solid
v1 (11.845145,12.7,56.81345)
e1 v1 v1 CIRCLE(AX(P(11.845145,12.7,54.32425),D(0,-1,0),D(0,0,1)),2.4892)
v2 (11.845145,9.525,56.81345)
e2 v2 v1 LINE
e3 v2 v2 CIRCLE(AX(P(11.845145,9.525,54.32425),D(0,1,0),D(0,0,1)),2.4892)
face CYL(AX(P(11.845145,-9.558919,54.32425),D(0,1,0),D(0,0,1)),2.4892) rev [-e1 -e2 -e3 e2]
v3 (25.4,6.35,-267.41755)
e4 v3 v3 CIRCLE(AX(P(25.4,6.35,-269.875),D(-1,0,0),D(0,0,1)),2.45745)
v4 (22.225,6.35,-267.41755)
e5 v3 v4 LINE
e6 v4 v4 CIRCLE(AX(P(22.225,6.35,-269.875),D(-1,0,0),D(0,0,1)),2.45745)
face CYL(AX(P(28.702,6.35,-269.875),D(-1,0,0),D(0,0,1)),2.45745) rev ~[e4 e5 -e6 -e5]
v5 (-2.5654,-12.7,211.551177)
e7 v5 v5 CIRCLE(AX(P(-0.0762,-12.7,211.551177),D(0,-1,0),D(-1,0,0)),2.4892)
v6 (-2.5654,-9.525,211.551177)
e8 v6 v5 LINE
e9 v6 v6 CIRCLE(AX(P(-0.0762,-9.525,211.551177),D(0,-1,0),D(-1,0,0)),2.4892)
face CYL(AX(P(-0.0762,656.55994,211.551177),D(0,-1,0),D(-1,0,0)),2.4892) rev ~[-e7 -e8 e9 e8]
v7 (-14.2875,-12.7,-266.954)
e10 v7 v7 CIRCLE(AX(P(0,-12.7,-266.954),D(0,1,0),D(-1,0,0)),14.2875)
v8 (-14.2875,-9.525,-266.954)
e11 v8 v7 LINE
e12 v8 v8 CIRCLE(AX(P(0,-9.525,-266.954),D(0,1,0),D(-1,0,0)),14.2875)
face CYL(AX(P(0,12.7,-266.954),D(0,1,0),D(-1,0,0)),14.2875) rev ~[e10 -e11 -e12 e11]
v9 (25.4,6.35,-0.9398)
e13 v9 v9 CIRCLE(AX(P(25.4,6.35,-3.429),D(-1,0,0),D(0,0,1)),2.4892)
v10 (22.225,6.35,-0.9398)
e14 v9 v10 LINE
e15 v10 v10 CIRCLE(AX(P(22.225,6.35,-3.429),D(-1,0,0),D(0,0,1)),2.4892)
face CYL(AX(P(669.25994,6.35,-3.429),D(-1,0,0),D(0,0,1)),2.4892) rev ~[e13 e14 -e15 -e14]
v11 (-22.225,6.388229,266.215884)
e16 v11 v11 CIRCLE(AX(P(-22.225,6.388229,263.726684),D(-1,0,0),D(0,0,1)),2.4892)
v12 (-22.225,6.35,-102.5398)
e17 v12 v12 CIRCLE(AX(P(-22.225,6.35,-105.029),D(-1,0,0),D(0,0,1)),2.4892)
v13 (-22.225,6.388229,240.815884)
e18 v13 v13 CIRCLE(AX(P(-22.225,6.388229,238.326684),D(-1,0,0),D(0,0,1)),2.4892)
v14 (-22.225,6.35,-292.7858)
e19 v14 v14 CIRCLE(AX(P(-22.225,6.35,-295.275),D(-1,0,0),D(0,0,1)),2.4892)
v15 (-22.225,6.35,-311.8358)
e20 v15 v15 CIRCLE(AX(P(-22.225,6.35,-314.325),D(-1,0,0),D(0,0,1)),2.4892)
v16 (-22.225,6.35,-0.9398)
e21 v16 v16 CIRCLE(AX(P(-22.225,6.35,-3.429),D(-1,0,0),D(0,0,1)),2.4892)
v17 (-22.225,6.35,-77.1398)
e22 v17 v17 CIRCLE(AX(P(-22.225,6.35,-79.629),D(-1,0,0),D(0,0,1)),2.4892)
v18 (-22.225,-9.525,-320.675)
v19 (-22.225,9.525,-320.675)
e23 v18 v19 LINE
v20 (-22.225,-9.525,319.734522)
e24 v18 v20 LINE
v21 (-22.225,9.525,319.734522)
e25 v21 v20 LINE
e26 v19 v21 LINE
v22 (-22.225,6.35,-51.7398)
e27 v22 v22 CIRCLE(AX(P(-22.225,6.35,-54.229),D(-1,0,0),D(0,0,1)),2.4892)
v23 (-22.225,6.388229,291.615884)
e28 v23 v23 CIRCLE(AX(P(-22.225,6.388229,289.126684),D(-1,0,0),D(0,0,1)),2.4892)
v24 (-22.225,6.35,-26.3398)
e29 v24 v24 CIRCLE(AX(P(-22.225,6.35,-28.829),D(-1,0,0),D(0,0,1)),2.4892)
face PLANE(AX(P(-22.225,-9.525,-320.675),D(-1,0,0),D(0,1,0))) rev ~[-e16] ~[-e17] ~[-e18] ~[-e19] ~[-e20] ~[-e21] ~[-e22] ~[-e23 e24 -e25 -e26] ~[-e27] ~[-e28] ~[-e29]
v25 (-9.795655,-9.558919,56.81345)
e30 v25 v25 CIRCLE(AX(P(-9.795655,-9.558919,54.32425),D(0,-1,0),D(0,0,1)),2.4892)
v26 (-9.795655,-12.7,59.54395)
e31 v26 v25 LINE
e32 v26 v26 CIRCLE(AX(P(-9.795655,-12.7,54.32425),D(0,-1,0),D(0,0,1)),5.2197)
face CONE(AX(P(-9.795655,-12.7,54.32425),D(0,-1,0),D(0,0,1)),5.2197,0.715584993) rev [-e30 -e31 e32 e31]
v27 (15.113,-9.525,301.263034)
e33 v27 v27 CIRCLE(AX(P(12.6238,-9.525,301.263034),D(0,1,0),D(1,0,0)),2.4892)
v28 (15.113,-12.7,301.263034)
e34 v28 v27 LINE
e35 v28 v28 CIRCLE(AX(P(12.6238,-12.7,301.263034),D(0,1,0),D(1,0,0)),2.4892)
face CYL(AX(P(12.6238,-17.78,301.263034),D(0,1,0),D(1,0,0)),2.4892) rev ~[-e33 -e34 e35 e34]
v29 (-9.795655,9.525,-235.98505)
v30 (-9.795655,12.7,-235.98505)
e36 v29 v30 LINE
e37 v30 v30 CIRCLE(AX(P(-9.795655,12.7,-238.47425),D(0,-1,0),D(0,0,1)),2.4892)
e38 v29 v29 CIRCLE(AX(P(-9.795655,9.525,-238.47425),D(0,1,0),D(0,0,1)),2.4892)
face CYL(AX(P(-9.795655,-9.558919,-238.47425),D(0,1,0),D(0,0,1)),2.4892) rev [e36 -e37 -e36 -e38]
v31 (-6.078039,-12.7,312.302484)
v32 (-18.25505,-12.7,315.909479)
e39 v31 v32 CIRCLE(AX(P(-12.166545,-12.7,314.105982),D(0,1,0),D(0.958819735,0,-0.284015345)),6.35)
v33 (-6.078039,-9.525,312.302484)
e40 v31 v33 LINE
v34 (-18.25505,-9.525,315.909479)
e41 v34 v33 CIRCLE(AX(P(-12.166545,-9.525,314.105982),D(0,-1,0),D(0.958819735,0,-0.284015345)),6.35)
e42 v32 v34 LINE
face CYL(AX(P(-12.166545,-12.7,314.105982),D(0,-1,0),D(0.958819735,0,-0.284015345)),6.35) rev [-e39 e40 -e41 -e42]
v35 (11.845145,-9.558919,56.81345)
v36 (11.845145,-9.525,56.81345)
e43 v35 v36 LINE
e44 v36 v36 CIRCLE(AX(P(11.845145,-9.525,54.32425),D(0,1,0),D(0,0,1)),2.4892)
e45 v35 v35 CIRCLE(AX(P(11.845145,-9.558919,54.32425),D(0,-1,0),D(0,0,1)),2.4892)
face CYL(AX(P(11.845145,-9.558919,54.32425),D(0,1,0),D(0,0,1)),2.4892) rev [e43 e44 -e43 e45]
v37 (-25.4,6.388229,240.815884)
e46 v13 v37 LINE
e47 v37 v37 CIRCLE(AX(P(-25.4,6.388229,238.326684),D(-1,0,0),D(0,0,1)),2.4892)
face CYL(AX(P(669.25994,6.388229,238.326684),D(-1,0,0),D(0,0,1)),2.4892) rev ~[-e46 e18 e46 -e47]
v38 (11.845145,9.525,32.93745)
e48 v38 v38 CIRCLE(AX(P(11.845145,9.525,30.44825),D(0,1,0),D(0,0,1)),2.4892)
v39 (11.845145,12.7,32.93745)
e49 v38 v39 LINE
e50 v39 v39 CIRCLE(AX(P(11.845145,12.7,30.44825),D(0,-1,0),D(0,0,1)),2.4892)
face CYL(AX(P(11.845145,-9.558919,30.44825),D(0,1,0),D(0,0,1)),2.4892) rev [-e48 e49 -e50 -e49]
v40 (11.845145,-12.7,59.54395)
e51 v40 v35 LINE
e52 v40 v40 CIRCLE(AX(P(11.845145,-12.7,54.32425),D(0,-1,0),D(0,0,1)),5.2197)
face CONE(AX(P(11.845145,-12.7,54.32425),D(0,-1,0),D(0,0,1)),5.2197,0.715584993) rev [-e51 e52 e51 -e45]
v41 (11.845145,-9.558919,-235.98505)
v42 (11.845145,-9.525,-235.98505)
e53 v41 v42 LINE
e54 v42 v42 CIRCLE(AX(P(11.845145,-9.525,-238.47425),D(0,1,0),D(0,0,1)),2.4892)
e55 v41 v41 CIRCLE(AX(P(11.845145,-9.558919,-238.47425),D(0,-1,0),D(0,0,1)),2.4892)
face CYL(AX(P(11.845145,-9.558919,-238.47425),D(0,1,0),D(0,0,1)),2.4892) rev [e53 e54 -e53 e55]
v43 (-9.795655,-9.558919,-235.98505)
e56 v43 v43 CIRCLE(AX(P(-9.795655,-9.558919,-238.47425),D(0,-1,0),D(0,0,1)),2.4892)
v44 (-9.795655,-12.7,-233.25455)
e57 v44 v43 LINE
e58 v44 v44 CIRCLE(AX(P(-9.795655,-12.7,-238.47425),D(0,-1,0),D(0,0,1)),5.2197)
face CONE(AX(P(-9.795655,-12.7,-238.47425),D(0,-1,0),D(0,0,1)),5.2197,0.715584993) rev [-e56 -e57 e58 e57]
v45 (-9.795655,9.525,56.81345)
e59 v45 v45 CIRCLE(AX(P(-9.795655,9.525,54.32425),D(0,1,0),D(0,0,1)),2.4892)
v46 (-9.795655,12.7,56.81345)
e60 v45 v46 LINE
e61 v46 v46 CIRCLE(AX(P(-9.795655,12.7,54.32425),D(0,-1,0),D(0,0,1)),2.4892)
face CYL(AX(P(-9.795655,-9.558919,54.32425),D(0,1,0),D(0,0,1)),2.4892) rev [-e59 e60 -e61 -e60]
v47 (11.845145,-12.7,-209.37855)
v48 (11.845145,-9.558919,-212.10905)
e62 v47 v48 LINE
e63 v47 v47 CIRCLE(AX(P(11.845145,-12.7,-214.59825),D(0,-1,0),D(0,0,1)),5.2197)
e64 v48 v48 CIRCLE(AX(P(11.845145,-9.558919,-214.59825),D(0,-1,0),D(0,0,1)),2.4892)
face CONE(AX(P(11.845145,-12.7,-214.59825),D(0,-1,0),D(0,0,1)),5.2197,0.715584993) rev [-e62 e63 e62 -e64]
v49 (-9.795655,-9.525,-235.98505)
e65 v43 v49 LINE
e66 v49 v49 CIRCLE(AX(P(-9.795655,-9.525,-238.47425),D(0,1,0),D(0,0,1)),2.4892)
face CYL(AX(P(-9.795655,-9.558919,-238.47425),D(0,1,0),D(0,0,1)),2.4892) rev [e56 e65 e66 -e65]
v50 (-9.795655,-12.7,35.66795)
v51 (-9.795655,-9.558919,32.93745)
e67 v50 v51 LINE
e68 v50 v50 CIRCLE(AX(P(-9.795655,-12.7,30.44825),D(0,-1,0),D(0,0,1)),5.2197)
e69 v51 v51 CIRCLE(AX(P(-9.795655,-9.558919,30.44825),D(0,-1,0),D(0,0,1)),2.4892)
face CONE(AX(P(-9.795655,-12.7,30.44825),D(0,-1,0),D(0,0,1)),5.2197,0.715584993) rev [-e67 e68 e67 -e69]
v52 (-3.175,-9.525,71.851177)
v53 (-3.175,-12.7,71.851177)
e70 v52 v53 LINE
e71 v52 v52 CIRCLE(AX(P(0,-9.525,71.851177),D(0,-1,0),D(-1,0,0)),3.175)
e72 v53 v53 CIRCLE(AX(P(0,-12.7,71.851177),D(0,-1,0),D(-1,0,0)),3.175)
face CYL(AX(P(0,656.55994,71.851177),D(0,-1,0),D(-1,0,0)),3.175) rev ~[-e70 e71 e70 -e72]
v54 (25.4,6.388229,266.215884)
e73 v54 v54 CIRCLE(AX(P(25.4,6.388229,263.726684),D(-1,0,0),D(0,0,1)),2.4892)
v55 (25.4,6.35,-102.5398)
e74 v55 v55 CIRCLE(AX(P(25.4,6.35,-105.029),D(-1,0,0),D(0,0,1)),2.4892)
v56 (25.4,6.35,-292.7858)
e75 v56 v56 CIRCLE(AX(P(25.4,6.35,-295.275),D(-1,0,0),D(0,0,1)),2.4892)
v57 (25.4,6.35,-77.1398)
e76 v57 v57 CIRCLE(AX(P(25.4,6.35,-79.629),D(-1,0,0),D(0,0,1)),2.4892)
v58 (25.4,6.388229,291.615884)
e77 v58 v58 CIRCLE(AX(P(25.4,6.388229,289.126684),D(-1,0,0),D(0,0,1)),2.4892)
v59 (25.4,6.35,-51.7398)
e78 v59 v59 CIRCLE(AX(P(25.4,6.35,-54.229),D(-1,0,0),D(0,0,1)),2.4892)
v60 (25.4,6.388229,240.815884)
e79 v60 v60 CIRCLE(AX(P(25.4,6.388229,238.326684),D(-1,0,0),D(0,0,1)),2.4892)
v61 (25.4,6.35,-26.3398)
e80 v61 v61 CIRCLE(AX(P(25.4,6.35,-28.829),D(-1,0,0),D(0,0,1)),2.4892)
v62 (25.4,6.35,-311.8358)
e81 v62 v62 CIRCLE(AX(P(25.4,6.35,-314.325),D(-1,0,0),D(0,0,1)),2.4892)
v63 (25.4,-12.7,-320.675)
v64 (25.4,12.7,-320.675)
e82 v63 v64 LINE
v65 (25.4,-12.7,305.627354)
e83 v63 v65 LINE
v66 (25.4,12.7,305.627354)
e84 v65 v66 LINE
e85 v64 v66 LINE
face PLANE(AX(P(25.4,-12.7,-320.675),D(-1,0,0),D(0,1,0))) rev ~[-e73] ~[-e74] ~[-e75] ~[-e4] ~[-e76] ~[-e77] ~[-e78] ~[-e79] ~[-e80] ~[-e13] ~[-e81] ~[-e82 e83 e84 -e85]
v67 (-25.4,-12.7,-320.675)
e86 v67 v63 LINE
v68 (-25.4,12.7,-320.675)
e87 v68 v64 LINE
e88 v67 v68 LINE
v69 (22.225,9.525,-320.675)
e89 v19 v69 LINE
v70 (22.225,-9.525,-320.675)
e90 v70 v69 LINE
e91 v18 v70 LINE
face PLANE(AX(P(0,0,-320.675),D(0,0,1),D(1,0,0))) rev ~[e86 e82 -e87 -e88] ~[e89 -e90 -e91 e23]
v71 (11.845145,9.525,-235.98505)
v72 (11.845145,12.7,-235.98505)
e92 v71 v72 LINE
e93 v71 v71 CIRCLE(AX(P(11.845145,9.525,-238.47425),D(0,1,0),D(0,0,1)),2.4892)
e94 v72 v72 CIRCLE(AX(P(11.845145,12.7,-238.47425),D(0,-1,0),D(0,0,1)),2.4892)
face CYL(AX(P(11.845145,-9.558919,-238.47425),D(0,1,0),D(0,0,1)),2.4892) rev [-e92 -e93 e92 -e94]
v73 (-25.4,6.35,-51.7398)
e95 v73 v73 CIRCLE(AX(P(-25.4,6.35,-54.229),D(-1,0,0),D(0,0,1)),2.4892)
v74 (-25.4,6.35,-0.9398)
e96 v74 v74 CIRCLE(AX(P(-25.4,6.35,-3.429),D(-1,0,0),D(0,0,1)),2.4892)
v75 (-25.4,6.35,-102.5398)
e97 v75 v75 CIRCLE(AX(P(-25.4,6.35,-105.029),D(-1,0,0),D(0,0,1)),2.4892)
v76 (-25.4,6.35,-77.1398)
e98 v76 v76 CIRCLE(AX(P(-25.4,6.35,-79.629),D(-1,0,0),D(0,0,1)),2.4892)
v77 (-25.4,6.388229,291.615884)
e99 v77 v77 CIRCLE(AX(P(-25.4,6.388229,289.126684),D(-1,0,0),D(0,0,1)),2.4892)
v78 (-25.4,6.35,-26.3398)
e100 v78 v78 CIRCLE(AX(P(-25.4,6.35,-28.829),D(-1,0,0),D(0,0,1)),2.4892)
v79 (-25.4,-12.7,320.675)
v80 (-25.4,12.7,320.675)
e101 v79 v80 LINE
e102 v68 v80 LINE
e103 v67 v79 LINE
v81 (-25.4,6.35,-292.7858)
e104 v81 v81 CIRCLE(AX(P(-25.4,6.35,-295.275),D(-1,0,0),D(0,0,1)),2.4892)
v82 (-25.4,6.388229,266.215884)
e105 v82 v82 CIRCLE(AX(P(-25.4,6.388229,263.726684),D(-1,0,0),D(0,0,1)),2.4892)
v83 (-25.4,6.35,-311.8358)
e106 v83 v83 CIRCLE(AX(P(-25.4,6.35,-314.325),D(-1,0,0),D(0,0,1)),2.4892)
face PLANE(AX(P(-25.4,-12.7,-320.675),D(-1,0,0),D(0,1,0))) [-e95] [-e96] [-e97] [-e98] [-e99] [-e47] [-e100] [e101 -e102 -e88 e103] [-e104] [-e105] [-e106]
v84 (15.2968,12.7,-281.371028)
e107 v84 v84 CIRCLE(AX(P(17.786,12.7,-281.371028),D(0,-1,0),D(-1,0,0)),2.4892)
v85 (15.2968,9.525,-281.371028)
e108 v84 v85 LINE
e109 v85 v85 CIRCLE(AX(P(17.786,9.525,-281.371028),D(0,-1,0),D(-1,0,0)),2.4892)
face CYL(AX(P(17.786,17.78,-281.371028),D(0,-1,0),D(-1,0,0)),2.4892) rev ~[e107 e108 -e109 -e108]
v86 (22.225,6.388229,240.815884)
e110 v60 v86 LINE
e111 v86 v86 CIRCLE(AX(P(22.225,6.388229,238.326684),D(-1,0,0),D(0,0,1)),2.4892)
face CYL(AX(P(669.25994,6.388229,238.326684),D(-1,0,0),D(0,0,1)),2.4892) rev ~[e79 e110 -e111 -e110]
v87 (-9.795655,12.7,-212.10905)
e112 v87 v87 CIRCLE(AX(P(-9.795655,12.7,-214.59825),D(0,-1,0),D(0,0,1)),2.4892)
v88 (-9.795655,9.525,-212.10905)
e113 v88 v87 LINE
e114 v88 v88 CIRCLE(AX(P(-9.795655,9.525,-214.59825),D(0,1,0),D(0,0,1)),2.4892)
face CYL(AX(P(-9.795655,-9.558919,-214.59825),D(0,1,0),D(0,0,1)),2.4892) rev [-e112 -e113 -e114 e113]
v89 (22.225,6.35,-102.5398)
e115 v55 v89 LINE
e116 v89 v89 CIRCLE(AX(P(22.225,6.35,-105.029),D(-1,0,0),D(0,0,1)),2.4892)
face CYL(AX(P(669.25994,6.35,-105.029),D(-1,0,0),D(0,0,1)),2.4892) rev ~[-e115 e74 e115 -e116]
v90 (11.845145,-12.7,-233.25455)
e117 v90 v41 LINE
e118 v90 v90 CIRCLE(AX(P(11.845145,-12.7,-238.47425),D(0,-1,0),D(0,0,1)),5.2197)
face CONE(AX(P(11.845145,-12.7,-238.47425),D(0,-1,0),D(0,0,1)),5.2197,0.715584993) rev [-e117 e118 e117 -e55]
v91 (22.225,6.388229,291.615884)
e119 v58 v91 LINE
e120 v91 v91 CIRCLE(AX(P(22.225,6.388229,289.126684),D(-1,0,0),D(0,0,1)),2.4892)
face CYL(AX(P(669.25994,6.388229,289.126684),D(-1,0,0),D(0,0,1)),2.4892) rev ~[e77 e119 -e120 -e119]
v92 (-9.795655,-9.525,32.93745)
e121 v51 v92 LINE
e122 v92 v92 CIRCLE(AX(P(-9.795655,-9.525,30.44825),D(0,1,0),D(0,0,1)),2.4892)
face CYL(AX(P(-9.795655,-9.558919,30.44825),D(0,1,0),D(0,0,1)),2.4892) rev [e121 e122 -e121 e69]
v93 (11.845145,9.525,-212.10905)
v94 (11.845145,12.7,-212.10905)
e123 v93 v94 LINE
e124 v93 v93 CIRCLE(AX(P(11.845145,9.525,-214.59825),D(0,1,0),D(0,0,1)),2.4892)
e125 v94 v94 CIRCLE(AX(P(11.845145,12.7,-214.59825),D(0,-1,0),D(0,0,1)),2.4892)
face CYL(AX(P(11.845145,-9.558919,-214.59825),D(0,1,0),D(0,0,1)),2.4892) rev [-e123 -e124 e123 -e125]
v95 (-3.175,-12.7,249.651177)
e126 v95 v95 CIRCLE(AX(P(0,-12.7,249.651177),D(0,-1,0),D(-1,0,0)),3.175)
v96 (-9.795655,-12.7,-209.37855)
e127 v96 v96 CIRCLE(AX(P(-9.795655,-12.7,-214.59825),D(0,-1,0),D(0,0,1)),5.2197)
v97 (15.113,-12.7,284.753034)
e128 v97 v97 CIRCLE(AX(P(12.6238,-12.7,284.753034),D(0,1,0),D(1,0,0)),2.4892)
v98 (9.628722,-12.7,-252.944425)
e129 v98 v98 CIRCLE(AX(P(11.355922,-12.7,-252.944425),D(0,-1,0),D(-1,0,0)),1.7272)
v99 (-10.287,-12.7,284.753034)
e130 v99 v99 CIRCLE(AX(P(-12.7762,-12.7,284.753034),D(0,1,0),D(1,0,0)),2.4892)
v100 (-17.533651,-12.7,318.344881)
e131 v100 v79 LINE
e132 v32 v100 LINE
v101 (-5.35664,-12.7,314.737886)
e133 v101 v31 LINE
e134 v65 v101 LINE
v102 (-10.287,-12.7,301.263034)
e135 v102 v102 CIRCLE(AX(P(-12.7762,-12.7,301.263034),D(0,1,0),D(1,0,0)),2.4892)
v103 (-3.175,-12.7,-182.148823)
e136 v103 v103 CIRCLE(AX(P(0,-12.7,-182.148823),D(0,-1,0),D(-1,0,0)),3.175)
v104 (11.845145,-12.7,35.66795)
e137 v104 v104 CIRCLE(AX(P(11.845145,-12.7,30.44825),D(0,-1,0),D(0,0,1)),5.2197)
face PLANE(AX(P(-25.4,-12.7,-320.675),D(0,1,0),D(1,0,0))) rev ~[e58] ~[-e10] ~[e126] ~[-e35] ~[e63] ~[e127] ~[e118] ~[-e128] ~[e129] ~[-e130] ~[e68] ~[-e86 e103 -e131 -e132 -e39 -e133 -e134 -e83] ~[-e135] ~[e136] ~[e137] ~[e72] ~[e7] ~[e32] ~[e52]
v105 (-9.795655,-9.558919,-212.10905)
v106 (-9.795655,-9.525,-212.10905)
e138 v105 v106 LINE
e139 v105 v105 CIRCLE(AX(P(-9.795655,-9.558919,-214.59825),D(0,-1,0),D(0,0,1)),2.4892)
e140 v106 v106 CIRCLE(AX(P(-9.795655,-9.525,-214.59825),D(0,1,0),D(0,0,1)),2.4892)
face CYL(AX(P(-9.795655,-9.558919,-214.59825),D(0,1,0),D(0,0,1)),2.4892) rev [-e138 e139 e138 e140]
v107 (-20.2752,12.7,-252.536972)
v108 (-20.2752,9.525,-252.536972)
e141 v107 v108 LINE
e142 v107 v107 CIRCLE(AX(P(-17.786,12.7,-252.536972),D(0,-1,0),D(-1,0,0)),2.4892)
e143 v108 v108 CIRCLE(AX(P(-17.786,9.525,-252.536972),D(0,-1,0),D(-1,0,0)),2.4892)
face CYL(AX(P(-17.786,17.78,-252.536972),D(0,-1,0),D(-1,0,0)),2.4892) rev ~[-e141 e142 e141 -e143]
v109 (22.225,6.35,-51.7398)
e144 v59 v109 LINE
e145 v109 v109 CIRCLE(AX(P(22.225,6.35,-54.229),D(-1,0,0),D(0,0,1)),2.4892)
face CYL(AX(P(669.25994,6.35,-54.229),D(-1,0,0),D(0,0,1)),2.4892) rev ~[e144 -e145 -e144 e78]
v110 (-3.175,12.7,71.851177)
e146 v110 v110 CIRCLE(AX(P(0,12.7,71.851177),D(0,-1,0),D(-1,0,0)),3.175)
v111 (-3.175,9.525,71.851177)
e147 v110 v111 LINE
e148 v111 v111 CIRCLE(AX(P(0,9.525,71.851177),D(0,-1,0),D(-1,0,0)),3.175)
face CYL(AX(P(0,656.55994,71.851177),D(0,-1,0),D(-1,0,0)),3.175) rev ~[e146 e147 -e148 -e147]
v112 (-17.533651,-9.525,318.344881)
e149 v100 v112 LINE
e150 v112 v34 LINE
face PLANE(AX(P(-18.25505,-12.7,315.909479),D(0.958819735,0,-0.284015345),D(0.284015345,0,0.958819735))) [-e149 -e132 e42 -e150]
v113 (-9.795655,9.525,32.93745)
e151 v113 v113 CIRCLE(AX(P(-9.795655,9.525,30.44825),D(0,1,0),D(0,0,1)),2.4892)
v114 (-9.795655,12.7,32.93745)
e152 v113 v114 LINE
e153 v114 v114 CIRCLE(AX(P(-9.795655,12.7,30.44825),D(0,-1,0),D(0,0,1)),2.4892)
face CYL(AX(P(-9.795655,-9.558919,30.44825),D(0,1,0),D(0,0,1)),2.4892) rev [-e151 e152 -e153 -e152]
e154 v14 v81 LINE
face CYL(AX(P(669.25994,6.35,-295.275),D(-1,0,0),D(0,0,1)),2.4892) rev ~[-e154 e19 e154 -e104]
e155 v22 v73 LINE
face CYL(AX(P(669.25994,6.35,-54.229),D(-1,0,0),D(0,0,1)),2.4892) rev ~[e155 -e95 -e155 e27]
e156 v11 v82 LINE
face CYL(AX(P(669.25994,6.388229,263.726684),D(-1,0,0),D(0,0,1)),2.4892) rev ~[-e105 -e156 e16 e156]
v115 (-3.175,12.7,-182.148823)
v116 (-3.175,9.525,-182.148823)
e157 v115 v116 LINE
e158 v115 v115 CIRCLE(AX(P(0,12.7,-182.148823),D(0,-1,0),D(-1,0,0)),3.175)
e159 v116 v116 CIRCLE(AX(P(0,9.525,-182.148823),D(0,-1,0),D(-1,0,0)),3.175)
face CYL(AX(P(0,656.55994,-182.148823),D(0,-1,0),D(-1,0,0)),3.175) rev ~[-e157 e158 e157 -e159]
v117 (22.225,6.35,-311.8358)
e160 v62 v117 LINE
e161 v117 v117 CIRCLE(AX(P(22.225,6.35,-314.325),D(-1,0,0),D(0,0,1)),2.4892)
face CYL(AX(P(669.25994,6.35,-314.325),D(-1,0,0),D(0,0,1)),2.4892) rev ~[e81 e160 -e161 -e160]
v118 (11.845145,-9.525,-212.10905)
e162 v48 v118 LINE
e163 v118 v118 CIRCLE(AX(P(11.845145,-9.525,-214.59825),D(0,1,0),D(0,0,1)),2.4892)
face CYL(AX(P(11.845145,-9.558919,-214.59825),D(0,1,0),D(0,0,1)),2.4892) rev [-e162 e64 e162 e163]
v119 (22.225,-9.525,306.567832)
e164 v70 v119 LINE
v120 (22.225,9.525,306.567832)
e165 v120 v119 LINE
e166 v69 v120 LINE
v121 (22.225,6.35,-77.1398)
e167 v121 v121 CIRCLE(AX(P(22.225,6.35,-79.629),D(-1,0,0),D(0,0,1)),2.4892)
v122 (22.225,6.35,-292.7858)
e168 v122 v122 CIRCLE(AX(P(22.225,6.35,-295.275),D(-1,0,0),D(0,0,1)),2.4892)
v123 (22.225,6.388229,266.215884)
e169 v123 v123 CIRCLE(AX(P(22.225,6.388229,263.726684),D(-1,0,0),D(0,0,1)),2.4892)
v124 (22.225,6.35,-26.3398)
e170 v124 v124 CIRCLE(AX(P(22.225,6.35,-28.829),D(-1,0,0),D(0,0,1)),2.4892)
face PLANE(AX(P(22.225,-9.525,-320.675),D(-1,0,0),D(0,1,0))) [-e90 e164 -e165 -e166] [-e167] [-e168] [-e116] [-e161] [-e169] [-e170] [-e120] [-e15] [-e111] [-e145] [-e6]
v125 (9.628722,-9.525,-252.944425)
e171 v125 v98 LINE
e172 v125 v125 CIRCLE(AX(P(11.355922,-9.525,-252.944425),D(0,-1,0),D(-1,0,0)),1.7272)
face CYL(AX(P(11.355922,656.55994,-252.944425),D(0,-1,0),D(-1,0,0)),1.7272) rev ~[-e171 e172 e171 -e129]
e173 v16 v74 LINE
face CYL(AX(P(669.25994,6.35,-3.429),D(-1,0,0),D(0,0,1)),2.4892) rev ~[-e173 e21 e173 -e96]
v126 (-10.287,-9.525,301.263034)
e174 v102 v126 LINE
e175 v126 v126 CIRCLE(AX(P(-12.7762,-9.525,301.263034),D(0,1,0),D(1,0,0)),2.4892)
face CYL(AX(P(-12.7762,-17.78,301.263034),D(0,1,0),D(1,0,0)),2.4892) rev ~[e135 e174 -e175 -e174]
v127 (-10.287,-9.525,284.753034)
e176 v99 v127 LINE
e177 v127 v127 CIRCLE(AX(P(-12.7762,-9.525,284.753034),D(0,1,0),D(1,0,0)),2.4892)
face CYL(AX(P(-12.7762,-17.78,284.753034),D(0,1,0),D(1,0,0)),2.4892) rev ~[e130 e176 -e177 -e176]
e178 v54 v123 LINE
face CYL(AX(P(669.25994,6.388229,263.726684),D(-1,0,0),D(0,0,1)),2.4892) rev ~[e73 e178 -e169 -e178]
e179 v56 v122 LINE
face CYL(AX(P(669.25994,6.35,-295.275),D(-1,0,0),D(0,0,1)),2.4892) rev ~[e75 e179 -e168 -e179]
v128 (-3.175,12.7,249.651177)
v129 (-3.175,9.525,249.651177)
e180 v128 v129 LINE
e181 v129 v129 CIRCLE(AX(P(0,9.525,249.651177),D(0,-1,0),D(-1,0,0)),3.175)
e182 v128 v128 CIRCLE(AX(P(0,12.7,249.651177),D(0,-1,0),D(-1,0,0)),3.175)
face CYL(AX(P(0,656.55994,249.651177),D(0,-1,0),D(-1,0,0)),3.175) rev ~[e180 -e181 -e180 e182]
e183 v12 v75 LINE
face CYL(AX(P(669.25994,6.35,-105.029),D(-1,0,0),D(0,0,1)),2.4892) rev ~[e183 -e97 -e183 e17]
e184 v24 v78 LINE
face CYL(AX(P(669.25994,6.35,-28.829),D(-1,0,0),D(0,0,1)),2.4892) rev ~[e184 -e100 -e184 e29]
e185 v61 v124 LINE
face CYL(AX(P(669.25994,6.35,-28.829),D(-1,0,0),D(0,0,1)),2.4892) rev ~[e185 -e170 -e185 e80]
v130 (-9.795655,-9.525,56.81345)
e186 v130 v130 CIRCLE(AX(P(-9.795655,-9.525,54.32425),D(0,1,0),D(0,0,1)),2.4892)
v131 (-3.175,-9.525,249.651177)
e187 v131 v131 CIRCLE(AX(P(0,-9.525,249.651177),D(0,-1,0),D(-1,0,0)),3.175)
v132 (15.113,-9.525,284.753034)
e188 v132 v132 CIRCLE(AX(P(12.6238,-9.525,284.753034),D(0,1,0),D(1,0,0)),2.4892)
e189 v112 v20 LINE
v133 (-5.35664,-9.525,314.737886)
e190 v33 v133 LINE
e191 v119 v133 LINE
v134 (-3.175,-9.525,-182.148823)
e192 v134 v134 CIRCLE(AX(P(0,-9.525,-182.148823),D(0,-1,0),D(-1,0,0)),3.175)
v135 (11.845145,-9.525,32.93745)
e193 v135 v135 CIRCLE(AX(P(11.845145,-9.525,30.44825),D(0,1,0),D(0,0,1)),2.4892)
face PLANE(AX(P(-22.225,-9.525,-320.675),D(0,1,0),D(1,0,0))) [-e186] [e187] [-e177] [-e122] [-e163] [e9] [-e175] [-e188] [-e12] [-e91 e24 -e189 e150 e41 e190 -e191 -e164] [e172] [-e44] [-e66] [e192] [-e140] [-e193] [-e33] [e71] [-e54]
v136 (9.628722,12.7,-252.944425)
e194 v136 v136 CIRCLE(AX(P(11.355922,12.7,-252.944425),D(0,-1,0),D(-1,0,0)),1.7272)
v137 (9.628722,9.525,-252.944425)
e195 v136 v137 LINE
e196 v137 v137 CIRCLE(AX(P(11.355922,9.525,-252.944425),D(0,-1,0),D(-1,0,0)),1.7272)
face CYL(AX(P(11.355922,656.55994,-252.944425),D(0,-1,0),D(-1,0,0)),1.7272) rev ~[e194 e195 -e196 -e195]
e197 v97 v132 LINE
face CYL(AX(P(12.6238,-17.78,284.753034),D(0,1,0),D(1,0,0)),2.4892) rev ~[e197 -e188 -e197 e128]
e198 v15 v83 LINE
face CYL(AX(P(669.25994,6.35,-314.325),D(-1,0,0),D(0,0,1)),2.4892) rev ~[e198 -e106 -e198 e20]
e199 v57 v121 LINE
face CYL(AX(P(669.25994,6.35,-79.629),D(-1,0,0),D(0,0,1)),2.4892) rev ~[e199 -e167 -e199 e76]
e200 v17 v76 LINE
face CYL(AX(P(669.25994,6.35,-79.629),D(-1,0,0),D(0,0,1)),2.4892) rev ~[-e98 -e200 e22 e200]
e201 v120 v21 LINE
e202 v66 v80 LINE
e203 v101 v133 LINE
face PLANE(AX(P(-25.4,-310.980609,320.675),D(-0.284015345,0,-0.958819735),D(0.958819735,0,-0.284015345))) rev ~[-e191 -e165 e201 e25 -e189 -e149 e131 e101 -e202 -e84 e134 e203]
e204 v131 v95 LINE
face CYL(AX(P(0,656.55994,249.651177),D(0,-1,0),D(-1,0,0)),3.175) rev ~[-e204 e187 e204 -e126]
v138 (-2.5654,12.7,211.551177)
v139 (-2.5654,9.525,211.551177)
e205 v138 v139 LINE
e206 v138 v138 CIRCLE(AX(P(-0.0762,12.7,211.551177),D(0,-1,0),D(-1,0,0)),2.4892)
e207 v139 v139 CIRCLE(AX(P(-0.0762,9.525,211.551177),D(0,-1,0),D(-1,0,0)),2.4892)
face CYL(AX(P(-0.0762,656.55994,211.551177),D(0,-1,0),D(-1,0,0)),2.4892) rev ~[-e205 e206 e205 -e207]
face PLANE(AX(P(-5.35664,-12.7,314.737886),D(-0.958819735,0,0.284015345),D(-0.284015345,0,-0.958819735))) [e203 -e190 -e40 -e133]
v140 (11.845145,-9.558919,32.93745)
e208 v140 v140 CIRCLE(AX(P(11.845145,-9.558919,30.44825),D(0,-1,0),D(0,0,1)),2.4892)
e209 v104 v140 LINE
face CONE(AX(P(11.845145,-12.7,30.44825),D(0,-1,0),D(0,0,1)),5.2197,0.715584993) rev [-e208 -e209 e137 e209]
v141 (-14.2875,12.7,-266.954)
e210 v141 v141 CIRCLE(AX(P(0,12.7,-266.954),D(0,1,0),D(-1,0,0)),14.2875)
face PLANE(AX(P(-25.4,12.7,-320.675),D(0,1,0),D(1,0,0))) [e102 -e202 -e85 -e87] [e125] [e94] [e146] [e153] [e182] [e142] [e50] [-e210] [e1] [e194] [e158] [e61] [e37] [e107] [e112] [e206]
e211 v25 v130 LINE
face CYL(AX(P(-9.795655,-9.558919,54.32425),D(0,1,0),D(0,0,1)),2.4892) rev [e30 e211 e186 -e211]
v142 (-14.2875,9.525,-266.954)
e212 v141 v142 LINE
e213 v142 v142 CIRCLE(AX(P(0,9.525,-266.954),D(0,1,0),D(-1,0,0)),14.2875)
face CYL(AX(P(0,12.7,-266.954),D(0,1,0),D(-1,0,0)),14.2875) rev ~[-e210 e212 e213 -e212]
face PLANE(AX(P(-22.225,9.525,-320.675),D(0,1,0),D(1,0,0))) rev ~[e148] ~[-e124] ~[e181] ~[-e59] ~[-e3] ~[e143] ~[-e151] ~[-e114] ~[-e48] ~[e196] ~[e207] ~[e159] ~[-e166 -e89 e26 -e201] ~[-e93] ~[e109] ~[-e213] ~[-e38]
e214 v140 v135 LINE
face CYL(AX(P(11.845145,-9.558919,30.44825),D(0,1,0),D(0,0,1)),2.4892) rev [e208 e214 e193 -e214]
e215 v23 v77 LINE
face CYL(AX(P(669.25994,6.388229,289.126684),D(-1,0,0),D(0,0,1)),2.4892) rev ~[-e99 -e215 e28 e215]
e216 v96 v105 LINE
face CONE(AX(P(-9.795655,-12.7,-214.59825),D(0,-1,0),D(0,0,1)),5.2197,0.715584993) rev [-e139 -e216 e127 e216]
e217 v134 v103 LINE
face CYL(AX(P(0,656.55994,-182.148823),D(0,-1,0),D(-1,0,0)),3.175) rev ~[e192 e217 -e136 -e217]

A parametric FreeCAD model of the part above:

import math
import FreeCAD as App
import Part
import Sketcher
from FreeCAD import Vector
Q = App.Units.Quantity

doc = App.newDocument("Part")
body = doc.addObject("PartDesign::Body", "Body")

# Sketch on XY plane
sketch1 = body.newObject("Sketcher::SketchObject", "Sketch")
sketch1.AttachmentSupport = (doc.getObject("XY_Plane"), [""])
sketch1.MapMode = "FlatFace"
sketch1.addGeometry(Part.LineSegment(Vector(-25, 13, 0), Vector(-25, -13, 0)), False)
sketch1.addGeometry(Part.LineSegment(Vector(-25, -13, 0), Vector(25, -13, 0)), False)
sketch1.addGeometry(Part.LineSegment(Vector(25, -13, 0), Vector(25, 13, 0)), False)
sketch1.addGeometry(Part.LineSegment(Vector(25, 13, 0), Vector(-25, 13, 0)), False)
sketch1.addGeometry(Part.LineSegment(Vector(22, -10, 0), Vector(-22, -10, 0)), False)
sketch1.addGeometry(Part.LineSegment(Vector(-22, -10, 0), Vector(-22, 10, 0)), False)
sketch1.addGeometry(Part.LineSegment(Vector(-22, 10, 0), Vector(22, 10, 0)), False)
sketch1.addGeometry(Part.LineSegment(Vector(22, 10, 0), Vector(22, -10, 0)), False)
sketch1.addConstraint(Sketcher.Constraint("Coincident", 0, 2, 1, 1))
sketch1.addConstraint(Sketcher.Constraint("Coincident", 1, 2, 2, 1))
sketch1.addConstraint(Sketcher.Constraint("Coincident", 2, 2, 3, 1))
sketch1.addConstraint(Sketcher.Constraint("Coincident", 3, 2, 0, 1))
sketch1.addConstraint(Sketcher.Constraint("Coincident", 4, 2, 5, 1))
sketch1.addConstraint(Sketcher.Constraint("Coincident", 5, 2, 6, 1))
sketch1.addConstraint(Sketcher.Constraint("Coincident", 6, 2, 7, 1))
sketch1.addConstraint(Sketcher.Constraint("Coincident", 7, 2, 4, 1))
sketch1.addConstraint(Sketcher.Constraint("Vertical", 0))
sketch1.addConstraint(Sketcher.Constraint("Horizontal", 1))
sketch1.addConstraint(Sketcher.Constraint("Vertical", 2))
sketch1.addConstraint(Sketcher.Constraint("Horizontal", 3))
sketch1.addConstraint(Sketcher.Constraint("Horizontal", 4))
sketch1.addConstraint(Sketcher.Constraint("Vertical", 5))
sketch1.addConstraint(Sketcher.Constraint("Horizontal", 6))
sketch1.addConstraint(Sketcher.Constraint("Vertical", 7))
sketch1.addConstraint(Sketcher.Constraint("Symmetric", 0, 2, 2, 2, -1, 1))
sketch1.addConstraint(Sketcher.Constraint("Symmetric", 4, 2, 6, 2, -1, 1))
sketch1.addConstraint(Sketcher.Constraint("DistanceX", 1, 1, 1, 2, Q("2 in")))
sketch1.addConstraint(Sketcher.Constraint("DistanceY", 0, 2, 0, 1, Q("1 in")))
sketch1.addConstraint(Sketcher.Constraint("DistanceX", 4, 2, 4, 1, Q("1.75 in")))
sketch1.addConstraint(Sketcher.Constraint("DistanceY", 5, 1, 5, 2, Q("0.75 in")))
pad1 = body.newObject("PartDesign::Pad", "Pad")
pad1.Profile = sketch1
pad1.Type = "TwoLengths"
pad1.Length = Q("12.625 in")
pad1.Length2 = Q("12.625 in")

# Sketch on XZ plane
sketch2 = body.newObject("Sketcher::SketchObject", "Sketch001")
sketch2.AttachmentSupport = (doc.getObject("XZ_Plane"), [""])
sketch2.MapMode = "FlatFace"
sketch2.AttachmentOffset = App.Placement(Vector(0, 0, -0.5 * 25.4), App.Rotation())
sketch2.addGeometry(Part.LineSegment(Vector(-25, 321, 0), Vector(1322, 321, 0)), False)
sketch2.addGeometry(Part.LineSegment(Vector(1322, 321, 0), Vector(3891, -37, 0)), False)
sketch2.addGeometry(Part.LineSegment(Vector(3891, -37, 0), Vector(3837, -420, 0)), False)
sketch2.addGeometry(Part.LineSegment(Vector(3837, -420, 0), Vector(1269, -63, 0)), False)
sketch2.addGeometry(Part.LineSegment(Vector(1269, -63, 0), Vector(25, 306, 0)), False)
sketch2.addGeometry(Part.LineSegment(Vector(25, 306, 0), Vector(-25, 321, 0)), False)
sketch2.addConstraint(Sketcher.Constraint("Coincident", 0, 2, 1, 1))
sketch2.addConstraint(Sketcher.Constraint("Coincident", 1, 2, 2, 1))
sketch2.addConstraint(Sketcher.Constraint("Coincident", 2, 2, 3, 1))
sketch2.addConstraint(Sketcher.Constraint("Coincident", 3, 2, 4, 1))
sketch2.addConstraint(Sketcher.Constraint("Coincident", 4, 2, 5, 1))
sketch2.addConstraint(Sketcher.Constraint("Coincident", 5, 2, 0, 1))
sketch2.addConstraint(Sketcher.Constraint("Horizontal", 0))
sketch2.addConstraint(Sketcher.Constraint("Perpendicular", 1, 2))
sketch2.addConstraint(Sketcher.Constraint("Perpendicular", 2, 3))
sketch2.addConstraint(Sketcher.Constraint("Parallel", 4, 5))
sketch2.addConstraint(Sketcher.Constraint("Equal", 1, 3))
sketch2.addConstraint(Sketcher.Constraint("DistanceX", -1, 1, 4, 2, Q("1 in")))
sketch2.addConstraint(Sketcher.Constraint("DistanceX", 5, 2, -1, 1, Q("1 in")))
sketch2.addConstraint(Sketcher.Constraint("Angle", 4, Q("163.5 deg")))
sketch2.addConstraint(Sketcher.Constraint("DistanceY", -1, 1, 0, 2, Q("12.625 in")))
sketch2.addConstraint(Sketcher.Constraint("DistanceX", 0, 1, 0, 2, Q("1347.517471 mm")))
sketch2.addConstraint(Sketcher.Constraint("DistanceX", -1, 1, 3, 2, Q("1268.718302 mm")))
sketch2.addConstraint(Sketcher.Constraint("Distance", 1, Q("2593.434942 mm")))
pocket1 = body.newObject("PartDesign::Pocket", "Pocket")
pocket1.Profile = sketch2
pocket1.Type = "ThroughAll"
pocket1.Midplane = True

# Sketch on XZ plane
sketch3 = body.newObject("Sketcher::SketchObject", "Sketch002")
sketch3.AttachmentSupport = (doc.getObject("XZ_Plane"), [""])
sketch3.MapMode = "FlatFace"
sketch3.AttachmentOffset = App.Placement(Vector(0, 0, -0.5 * 25.4), App.Rotation())
sketch3.addGeometry(Part.Circle(Vector(0, -267, 0), Vector(0, 0, 1), 14), False)
sketch3.addConstraint(Sketcher.Constraint("PointOnObject", 0, 3, -2))
sketch3.addConstraint(Sketcher.Constraint("Diameter", 0, Q("1.125 in")))
sketch3.addConstraint(Sketcher.Constraint("DistanceY", 0, 3, -1, 1, Q("10.51 in")))
pocket2 = body.newObject("PartDesign::Pocket", "Pocket001")
pocket2.Profile = sketch3
pocket2.Type = "ThroughAll"
pocket2.Reversed = True

# Sketch on XZ plane
sketch4 = body.newObject("Sketcher::SketchObject", "Sketch003")
sketch4.AttachmentSupport = (doc.getObject("XZ_Plane"), [""])
sketch4.MapMode = "FlatFace"
sketch4.AttachmentOffset = App.Placement(Vector(0, 0, 0.5 * 25.4), App.Rotation())
sketch4.addGeometry(Part.Circle(Vector(12.6, 284.8, 0), Vector(0, 0, 1), 2.5), False)
sketch4.addGeometry(Part.Circle(Vector(-12.8, 284.8, 0), Vector(0, 0, 1), 2.5), False)
sketch4.addGeometry(Part.Circle(Vector(-12.8, 301.3, 0), Vector(0, 0, 1), 2.5), False)
sketch4.addGeometry(Part.Circle(Vector(12.6, 301.3, 0), Vector(0, 0, 1), 2.5), False)
sketch4.addConstraint(Sketcher.Constraint("Equal", 0, 1))
sketch4.addConstraint(Sketcher.Constraint("Equal", 1, 2))
sketch4.addConstraint(Sketcher.Constraint("Equal", 2, 3))
sketch4.addConstraint(Sketcher.Constraint("Horizontal", 0, 3, 1, 3))
sketch4.addConstraint(Sketcher.Constraint("Horizontal", 2, 3, 3, 3))
sketch4.addConstraint(Sketcher.Constraint("Vertical", 1, 3, 2, 3))
sketch4.addConstraint(Sketcher.Constraint("Vertical", 0, 3, 3, 3))
sketch4.addConstraint(Sketcher.Constraint("Diameter", 0, Q("0.196 in")))
sketch4.addConstraint(Sketcher.Constraint("DistanceX", 1, 3, 0, 3, Q("1 in")))
sketch4.addConstraint(Sketcher.Constraint("DistanceY", 1, 3, 2, 3, Q("0.65 in")))
sketch4.addConstraint(Sketcher.Constraint("DistanceX", -1, 1, 0, 3, Q("0.497 in")))
sketch4.addConstraint(Sketcher.Constraint("DistanceY", -1, 1, 0, 3, Q("284.753034 mm")))
doc.recompute()
hole = body.newObject("PartDesign::Hole", "Hole")
hole.Profile = sketch4
hole.ThreadType = "None"
hole.Diameter = Q("0.196 in")
hole.DepthType = "Dimension"
hole.Depth = Q("0.2 in")
hole.DrillPoint = "Angled"
hole.DrillPointAngle = 118

# Sketch on YZ plane
sketch5 = body.newObject("Sketcher::SketchObject", "Sketch004")
sketch5.AttachmentSupport = (doc.getObject("YZ_Plane"), [""])
sketch5.MapMode = "FlatFace"
sketch5.AttachmentOffset = App.Placement(Vector(0, 0, 1 * 25.4), App.Rotation())
sketch5.addGeometry(Part.Circle(Vector(6.3, -314.3, 0), Vector(0, 0, 1), 2.5), False)
sketch5.addGeometry(Part.Circle(Vector(6.3, -295.3, 0), Vector(0, 0, 1), 2.5), False)
sketch5.addConstraint(Sketcher.Constraint("Equal", 0, 1))
sketch5.addConstraint(Sketcher.Constraint("Vertical", 0, 3, 1, 3))
sketch5.addConstraint(Sketcher.Constraint("Diameter", 0, Q("0.196 in")))
sketch5.addConstraint(Sketcher.Constraint("DistanceX", -1, 1, 0, 3, Q("0.25 in")))
sketch5.addConstraint(Sketcher.Constraint("DistanceY", 0, 3, 1, 3, Q("0.75 in")))
sketch5.addConstraint(Sketcher.Constraint("DistanceY", 0, 3, -1, 1, Q("12.375 in")))
doc.recompute()
hole2 = body.newObject("PartDesign::Hole", "Hole001")
hole2.Profile = sketch5
hole2.ThreadType = "None"
hole2.Diameter = Q("0.196 in")
hole2.DepthType = "ThroughAll"

# Sketch on YZ plane
sketch6 = body.newObject("Sketcher::SketchObject", "Sketch005")
sketch6.AttachmentSupport = (doc.getObject("YZ_Plane"), [""])
sketch6.MapMode = "FlatFace"
sketch6.AttachmentOffset = App.Placement(Vector(0, 0, 1 * 25.4), App.Rotation())
sketch6.addGeometry(Part.Circle(Vector(6.3, -105, 0), Vector(0, 0, 1), 2.5), False)
sketch6.addGeometry(Part.Circle(Vector(6.3, -79.6, 0), Vector(0, 0, 1), 2.5), False)
sketch6.addGeometry(Part.Circle(Vector(6.3, -54.2, 0), Vector(0, 0, 1), 2.5), False)
sketch6.addGeometry(Part.Circle(Vector(6.3, -28.8, 0), Vector(0, 0, 1), 2.5), False)
sketch6.addGeometry(Part.Circle(Vector(6.3, -3.4, 0), Vector(0, 0, 1), 2.5), False)
sketch6.addGeometry(Part.Circle(Vector(6.4, 289.1, 0), Vector(0, 0, 1), 2.5), False)
sketch6.addGeometry(Part.Circle(Vector(6.4, 263.7, 0), Vector(0, 0, 1), 2.5), False)
sketch6.addGeometry(Part.Circle(Vector(6.4, 238.3, 0), Vector(0, 0, 1), 2.5), False)
sketch6.addConstraint(Sketcher.Constraint("Equal", 0, 1))
sketch6.addConstraint(Sketcher.Constraint("Equal", 1, 2))
sketch6.addConstraint(Sketcher.Constraint("Equal", 2, 3))
sketch6.addConstraint(Sketcher.Constraint("Equal", 3, 4))
sketch6.addConstraint(Sketcher.Constraint("Equal", 4, 5))
sketch6.addConstraint(Sketcher.Constraint("Equal", 5, 6))
sketch6.addConstraint(Sketcher.Constraint("Equal", 6, 7))
sketch6.addConstraint(Sketcher.Constraint("Vertical", 0, 3, 1, 3))
sketch6.addConstraint(Sketcher.Constraint("Vertical", 1, 3, 2, 3))
sketch6.addConstraint(Sketcher.Constraint("Vertical", 2, 3, 3, 3))
sketch6.addConstraint(Sketcher.Constraint("Vertical", 3, 3, 4, 3))
sketch6.addConstraint(Sketcher.Constraint("Vertical", 5, 3, 6, 3))
sketch6.addConstraint(Sketcher.Constraint("Vertical", 6, 3, 7, 3))
sketch6.addConstraint(Sketcher.Constraint("Diameter", 0, Q("0.196 in")))
sketch6.addConstraint(Sketcher.Constraint("DistanceY", 0, 3, 1, 3, Q("1 in")))
sketch6.addConstraint(Sketcher.Constraint("DistanceY", 1, 3, 2, 3, Q("1 in")))
sketch6.addConstraint(Sketcher.Constraint("DistanceY", 2, 3, 3, 3, Q("1 in")))
sketch6.addConstraint(Sketcher.Constraint("DistanceY", 3, 3, 4, 3, Q("1 in")))
sketch6.addConstraint(Sketcher.Constraint("DistanceY", 6, 3, 5, 3, Q("1 in")))
sketch6.addConstraint(Sketcher.Constraint("DistanceY", 7, 3, 6, 3, Q("1 in")))
sketch6.addConstraint(Sketcher.Constraint("DistanceX", -1, 1, 0, 3, Q("0.25 in")))
sketch6.addConstraint(Sketcher.Constraint("DistanceY", 0, 3, -1, 1, Q("4.135 in")))
sketch6.addConstraint(Sketcher.Constraint("DistanceX", -1, 1, 5, 3, Q("6.388229 mm")))
sketch6.addConstraint(Sketcher.Constraint("DistanceY", -1, 1, 5, 3, Q("289.126684 mm")))
doc.recompute()
hole3 = body.newObject("PartDesign::Hole", "Hole002")
hole3.Profile = sketch6
hole3.ThreadType = "None"
hole3.Diameter = Q("0.196 in")
hole3.DepthType = "ThroughAll"

# Sketch on XZ plane
sketch7 = body.newObject("Sketcher::SketchObject", "Sketch006")
sketch7.AttachmentSupport = (doc.getObject("XZ_Plane"), [""])
sketch7.MapMode = "FlatFace"
sketch7.AttachmentOffset = App.Placement(Vector(0, 0, -0.5 * 25.4), App.Rotation())
sketch7.addGeometry(Part.Circle(Vector(17.8, -281.4, 0), Vector(0, 0, 1), 2.5), False)
sketch7.addGeometry(Part.Circle(Vector(-17.8, -252.5, 0), Vector(0, 0, 1), 2.5), False)
sketch7.addConstraint(Sketcher.Constraint("Equal", 0, 1))
sketch7.addConstraint(Sketcher.Constraint("Diameter", 0, Q("0.196 in")))
sketch7.addConstraint(Sketcher.Constraint("DistanceX", -1, 1, 0, 3, Q("17.786 mm")))
sketch7.addConstraint(Sketcher.Constraint("DistanceX", 1, 3, -1, 1, Q("17.786 mm")))
sketch7.addConstraint(Sketcher.Constraint("DistanceY", 0, 3, -1, 1, Q("281.371028 mm")))
sketch7.addConstraint(Sketcher.Constraint("DistanceY", 1, 3, -1, 1, Q("252.536972 mm")))
doc.recompute()
hole4 = body.newObject("PartDesign::Hole", "Hole003")
hole4.Profile = sketch7
hole4.ThreadType = "None"
hole4.Diameter = Q("0.196 in")
hole4.DepthType = "Dimension"
hole4.Depth = Q("0.2 in")
hole4.DrillPoint = "Angled"
hole4.DrillPointAngle = 118
hole4.Reversed = True

# Sketch on XZ plane
sketch8 = body.newObject("Sketcher::SketchObject", "Sketch007")
sketch8.AttachmentSupport = (doc.getObject("XZ_Plane"), [""])
sketch8.MapMode = "FlatFace"
sketch8.AttachmentOffset = App.Placement(Vector(0, 0, -0.5 * 25.4), App.Rotation())
sketch8.addGeometry(Part.Circle(Vector(-0.1, 211.6, 0), Vector(0, 0, 1), 2.5), False)
sketch8.addConstraint(Sketcher.Constraint("Diameter", 0, Q("0.196 in")))
sketch8.addConstraint(Sketcher.Constraint("DistanceX", 0, 3, -1, 1, Q("0.003 in")))
sketch8.addConstraint(Sketcher.Constraint("DistanceY", -1, 1, 0, 3, Q("211.551177 mm")))
doc.recompute()
hole5 = body.newObject("PartDesign::Hole", "Hole004")
hole5.Profile = sketch8
hole5.ThreadType = "None"
hole5.Diameter = Q("0.196 in")
hole5.DepthType = "ThroughAll"
hole5.Reversed = True

# Sketch on XZ plane
sketch9 = body.newObject("Sketcher::SketchObject", "Sketch008")
sketch9.AttachmentSupport = (doc.getObject("XZ_Plane"), [""])
sketch9.MapMode = "FlatFace"
sketch9.AttachmentOffset = App.Placement(Vector(0, 0, -0.5 * 25.4), App.Rotation())
sketch9.addGeometry(Part.Circle(Vector(11.4, -252.9, 0), Vector(0, 0, 1), 1.7), False)
sketch9.addConstraint(Sketcher.Constraint("Diameter", 0, Q("0.136 in")))
sketch9.addConstraint(Sketcher.Constraint("DistanceX", -1, 1, 0, 3, Q("11.355922 mm")))
sketch9.addConstraint(Sketcher.Constraint("DistanceY", 0, 3, -1, 1, Q("252.944425 mm")))
doc.recompute()
hole6 = body.newObject("PartDesign::Hole", "Hole005")
hole6.Profile = sketch9
hole6.ThreadType = "None"
hole6.Diameter = Q("0.136 in")
hole6.DepthType = "ThroughAll"
hole6.Reversed = True

# Sketch on YZ plane
sketch10 = body.newObject("Sketcher::SketchObject", "Sketch009")
sketch10.AttachmentSupport = (doc.getObject("YZ_Plane"), [""])
sketch10.MapMode = "FlatFace"
sketch10.AttachmentOffset = App.Placement(Vector(0, 0, -9.795655), App.Rotation())
sketch10.addGeometry(Part.LineSegment(Vector(-12.7, -238.5, 0), Vector(12.7, -238.5, 0)), False)
sketch10.addGeometry(Part.LineSegment(Vector(12.7, -238.5, 0), Vector(12.7, -236, 0)), False)
sketch10.addGeometry(Part.LineSegment(Vector(12.7, -236, 0), Vector(-9.6, -236, 0)), False)
sketch10.addGeometry(Part.LineSegment(Vector(-9.6, -236, 0), Vector(-12.7, -233.3, 0)), False)
sketch10.addGeometry(Part.LineSegment(Vector(-12.7, -233.3, 0), Vector(-12.7, -238.5, 0)), False)
sketch10.addGeometry(Part.LineSegment(Vector(12.7, -238.5, 0), Vector(-12.7, -238.5, 0)), True)  # axis
sketch10.addConstraint(Sketcher.Constraint("Coincident", 0, 2, 1, 1))
sketch10.addConstraint(Sketcher.Constraint("Coincident", 1, 2, 2, 1))
sketch10.addConstraint(Sketcher.Constraint("Coincident", 2, 2, 3, 1))
sketch10.addConstraint(Sketcher.Constraint("Coincident", 3, 2, 4, 1))
sketch10.addConstraint(Sketcher.Constraint("Coincident", 4, 2, 0, 1))
sketch10.addConstraint(Sketcher.Constraint("Horizontal", 0))
sketch10.addConstraint(Sketcher.Constraint("Vertical", 1))
sketch10.addConstraint(Sketcher.Constraint("Horizontal", 2))
sketch10.addConstraint(Sketcher.Constraint("Vertical", 4))
sketch10.addConstraint(Sketcher.Constraint("Horizontal", 5))
sketch10.addConstraint(Sketcher.Constraint("Coincident", 5, 1, 0, 2))
sketch10.addConstraint(Sketcher.Constraint("Vertical", 3, 2, 5, 2))
sketch10.addConstraint(Sketcher.Constraint("DistanceX", 0, 1, 0, 2, Q("1 in")))
sketch10.addConstraint(Sketcher.Constraint("Angle", 3, Q("139 deg")))
sketch10.addConstraint(Sketcher.Constraint("DistanceX", -1, 1, 0, 2, Q("0.5 in")))
sketch10.addConstraint(Sketcher.Constraint("DistanceY", 1, 1, 1, 2, Q("0.098 in")))
sketch10.addConstraint(Sketcher.Constraint("DistanceY", 4, 2, 4, 1, Q("0.2055 in")))
sketch10.addConstraint(Sketcher.Constraint("DistanceY", 0, 2, -1, 1, Q("238.47425 mm")))
groove = body.newObject("PartDesign::Groove", "Groove")
groove.Profile = sketch10
groove.ReferenceAxis = (sketch10, ["Axis0"])
groove.Angle = 360
doc.recompute()

linearpattern = body.newObject("PartDesign::LinearPattern", "LinearPattern")
linearpattern.Originals = [groove]
linearpattern.Direction = (doc.getObject("X_Axis"), [""])
linearpattern.Mode = "offset"
linearpattern.Offset = Q("0.852 in")
linearpattern.Occurrences = 2
body.Tip = linearpattern
doc.recompute()

datumline = body.newObject("PartDesign::Line", "DatumLine")
datumline.Placement = App.Placement(Vector(0, 0, 0), App.Rotation(Vector(0, 0, 1), Vector(0.671573521, 0, 0.740937923)))
linearpattern2 = body.newObject("PartDesign::LinearPattern", "LinearPattern001")
linearpattern2.Originals = [groove]
linearpattern2.Direction = (datumline, [""])
linearpattern2.Mode = "offset"
linearpattern2.Offset = 32.224022
linearpattern2.Occurrences = 2
body.Tip = linearpattern2
doc.recompute()

linearpattern3 = body.newObject("PartDesign::LinearPattern", "LinearPattern002")
linearpattern3.Originals = [groove]
linearpattern3.Direction = (doc.getObject("Z_Axis"), [""])
linearpattern3.Mode = "offset"
linearpattern3.Offset = Q("0.94 in")
linearpattern3.Occurrences = 2
body.Tip = linearpattern3
doc.recompute()

datumline2 = body.newObject("PartDesign::Line", "DatumLine001")
datumline2.Placement = App.Placement(Vector(0, 0, 0), App.Rotation(Vector(0, 0, 1), Vector(0.080212953, 0, 0.99677775)))
linearpattern4 = body.newObject("PartDesign::LinearPattern", "LinearPattern003")
linearpattern4.Originals = [groove]
linearpattern4.Direction = (datumline2, [""])
linearpattern4.Mode = "offset"
linearpattern4.Offset = 269.791837
linearpattern4.Occurrences = 2
body.Tip = linearpattern4
doc.recompute()

linearpattern5 = body.newObject("PartDesign::LinearPattern", "LinearPattern004")
linearpattern5.Originals = [groove]
linearpattern5.Direction = (doc.getObject("Z_Axis"), [""])
linearpattern5.Mode = "offset"
linearpattern5.Offset = Q("10.5875 in")
linearpattern5.Occurrences = 2
body.Tip = linearpattern5
doc.recompute()

linearpattern6 = body.newObject("PartDesign::LinearPattern", "LinearPattern005")
linearpattern6.Originals = [groove]
linearpattern6.Direction = (doc.getObject("Z_Axis"), [""])
linearpattern6.Mode = "offset"
linearpattern6.Offset = Q("11.5275 in")
linearpattern6.Occurrences = 2
body.Tip = linearpattern6
doc.recompute()

datumline3 = body.newObject("PartDesign::Line", "DatumLine002")
datumline3.Placement = App.Placement(Vector(0, 0, 0), App.Rotation(Vector(0, 0, 1), Vector(0.073709163, 0, 0.99727978)))
linearpattern7 = body.newObject("PartDesign::LinearPattern", "LinearPattern006")
linearpattern7.Originals = [groove]
linearpattern7.Direction = (datumline3, [""])
linearpattern7.Mode = "offset"
linearpattern7.Offset = 293.597149
linearpattern7.Occurrences = 2
body.Tip = linearpattern7

# Sketch on YZ plane
sketch11 = body.newObject("Sketcher::SketchObject", "Sketch010")
sketch11.AttachmentSupport = (doc.getObject("YZ_Plane"), [""])
sketch11.MapMode = "FlatFace"
sketch11.AttachmentOffset = App.Placement(Vector(0, 0, 1 * 25.4), App.Rotation())
sketch11.addGeometry(Part.Circle(Vector(6.3, -269.9, 0), Vector(0, 0, 1), 2.5), False)
sketch11.addConstraint(Sketcher.Constraint("Diameter", 0, Q("0.1935 in")))
sketch11.addConstraint(Sketcher.Constraint("DistanceX", -1, 1, 0, 3, Q("0.25 in")))
sketch11.addConstraint(Sketcher.Constraint("DistanceY", 0, 3, -1, 1, Q("10.625 in")))
doc.recompute()
hole7 = body.newObject("PartDesign::Hole", "Hole006")
hole7.Profile = sketch11
hole7.ThreadType = "None"
hole7.Diameter = Q("0.1935 in")
hole7.DepthType = "Dimension"
hole7.Depth = Q("0.13 in")
hole7.DrillPoint = "Angled"
hole7.DrillPointAngle = 118

# Sketch on XZ plane
sketch12 = body.newObject("Sketcher::SketchObject", "Sketch011")
sketch12.AttachmentSupport = (doc.getObject("XZ_Plane"), [""])
sketch12.MapMode = "FlatFace"
sketch12.AttachmentOffset = App.Placement(Vector(0, 0, 0.5 * 25.4), App.Rotation())
sketch12.addGeometry(Part.LineSegment(Vector(-17.5, 318.3, 0), Vector(-5.4, 314.7, 0)), False)
sketch12.addGeometry(Part.LineSegment(Vector(-5.4, 314.7, 0), Vector(-6.1, 312.3, 0)), False)
sketch12.addGeometry(Part.ArcOfCircle(Part.Circle(Vector(-12.2, 314.1, 0), Vector(0, 0, 1), 6.3), math.radians(164), math.radians(344)), False)
sketch12.addGeometry(Part.LineSegment(Vector(-18.3, 315.9, 0), Vector(-17.5, 318.3, 0)), False)
sketch12.addConstraint(Sketcher.Constraint("Coincident", 0, 2, 1, 1))
sketch12.addConstraint(Sketcher.Constraint("Tangent", 1, 2, 2, 2))
sketch12.addConstraint(Sketcher.Constraint("Tangent", 2, 1, 3, 1))
sketch12.addConstraint(Sketcher.Constraint("Coincident", 3, 2, 0, 1))
sketch12.addConstraint(Sketcher.Constraint("Perpendicular", 0, 1))
sketch12.addConstraint(Sketcher.Constraint("Parallel", 1, 3))
sketch12.addConstraint(Sketcher.Constraint("Radius", 2, Q("0.25 in")))
sketch12.addConstraint(Sketcher.Constraint("Distance", 1, Q("0.1 in")))
sketch12.addConstraint(Sketcher.Constraint("Angle", 0, Q("-16.5 deg")))
sketch12.addConstraint(Sketcher.Constraint("DistanceY", -1, 1, 2, 3, Q("314.105982 mm")))
sketch12.addConstraint(Sketcher.Constraint("DistanceX", 0, 2, -1, 1, Q("5.35664 mm")))
pocket3 = body.newObject("PartDesign::Pocket", "Pocket002")
pocket3.Profile = sketch12
pocket3.Length = Q("0.2 in")

# Sketch on XZ plane
sketch13 = body.newObject("Sketcher::SketchObject", "Sketch012")
sketch13.AttachmentSupport = (doc.getObject("XZ_Plane"), [""])
sketch13.MapMode = "FlatFace"
sketch13.AttachmentOffset = App.Placement(Vector(0, 0, -0.5 * 25.4), App.Rotation())
sketch13.addGeometry(Part.Circle(Vector(0, 71.9, 0), Vector(0, 0, 1), 3.2), False)
sketch13.addGeometry(Part.Circle(Vector(0, 249.7, 0), Vector(0, 0, 1), 3.2), False)
sketch13.addGeometry(Part.Circle(Vector(0, -182.1, 0), Vector(0, 0, 1), 3.2), False)
sketch13.addConstraint(Sketcher.Constraint("Equal", 0, 1))
sketch13.addConstraint(Sketcher.Constraint("Equal", 1, 2))
sketch13.addConstraint(Sketcher.Constraint("PointOnObject", 0, 3, -2))
sketch13.addConstraint(Sketcher.Constraint("PointOnObject", 1, 3, -2))
sketch13.addConstraint(Sketcher.Constraint("PointOnObject", 2, 3, -2))
sketch13.addConstraint(Sketcher.Constraint("Diameter", 0, Q("0.25 in")))
sketch13.addConstraint(Sketcher.Constraint("DistanceY", 0, 3, 1, 3, Q("7 in")))
sketch13.addConstraint(Sketcher.Constraint("DistanceY", 2, 3, 0, 3, Q("10 in")))
sketch13.addConstraint(Sketcher.Constraint("DistanceY", -1, 1, 0, 3, Q("71.851177 mm")))
doc.recompute()
hole8 = body.newObject("PartDesign::Hole", "Hole007")
hole8.Profile = sketch13
hole8.ThreadType = "None"
hole8.Diameter = Q("0.25 in")
hole8.DepthType = "ThroughAll"
hole8.Reversed = True

doc.recompute()
